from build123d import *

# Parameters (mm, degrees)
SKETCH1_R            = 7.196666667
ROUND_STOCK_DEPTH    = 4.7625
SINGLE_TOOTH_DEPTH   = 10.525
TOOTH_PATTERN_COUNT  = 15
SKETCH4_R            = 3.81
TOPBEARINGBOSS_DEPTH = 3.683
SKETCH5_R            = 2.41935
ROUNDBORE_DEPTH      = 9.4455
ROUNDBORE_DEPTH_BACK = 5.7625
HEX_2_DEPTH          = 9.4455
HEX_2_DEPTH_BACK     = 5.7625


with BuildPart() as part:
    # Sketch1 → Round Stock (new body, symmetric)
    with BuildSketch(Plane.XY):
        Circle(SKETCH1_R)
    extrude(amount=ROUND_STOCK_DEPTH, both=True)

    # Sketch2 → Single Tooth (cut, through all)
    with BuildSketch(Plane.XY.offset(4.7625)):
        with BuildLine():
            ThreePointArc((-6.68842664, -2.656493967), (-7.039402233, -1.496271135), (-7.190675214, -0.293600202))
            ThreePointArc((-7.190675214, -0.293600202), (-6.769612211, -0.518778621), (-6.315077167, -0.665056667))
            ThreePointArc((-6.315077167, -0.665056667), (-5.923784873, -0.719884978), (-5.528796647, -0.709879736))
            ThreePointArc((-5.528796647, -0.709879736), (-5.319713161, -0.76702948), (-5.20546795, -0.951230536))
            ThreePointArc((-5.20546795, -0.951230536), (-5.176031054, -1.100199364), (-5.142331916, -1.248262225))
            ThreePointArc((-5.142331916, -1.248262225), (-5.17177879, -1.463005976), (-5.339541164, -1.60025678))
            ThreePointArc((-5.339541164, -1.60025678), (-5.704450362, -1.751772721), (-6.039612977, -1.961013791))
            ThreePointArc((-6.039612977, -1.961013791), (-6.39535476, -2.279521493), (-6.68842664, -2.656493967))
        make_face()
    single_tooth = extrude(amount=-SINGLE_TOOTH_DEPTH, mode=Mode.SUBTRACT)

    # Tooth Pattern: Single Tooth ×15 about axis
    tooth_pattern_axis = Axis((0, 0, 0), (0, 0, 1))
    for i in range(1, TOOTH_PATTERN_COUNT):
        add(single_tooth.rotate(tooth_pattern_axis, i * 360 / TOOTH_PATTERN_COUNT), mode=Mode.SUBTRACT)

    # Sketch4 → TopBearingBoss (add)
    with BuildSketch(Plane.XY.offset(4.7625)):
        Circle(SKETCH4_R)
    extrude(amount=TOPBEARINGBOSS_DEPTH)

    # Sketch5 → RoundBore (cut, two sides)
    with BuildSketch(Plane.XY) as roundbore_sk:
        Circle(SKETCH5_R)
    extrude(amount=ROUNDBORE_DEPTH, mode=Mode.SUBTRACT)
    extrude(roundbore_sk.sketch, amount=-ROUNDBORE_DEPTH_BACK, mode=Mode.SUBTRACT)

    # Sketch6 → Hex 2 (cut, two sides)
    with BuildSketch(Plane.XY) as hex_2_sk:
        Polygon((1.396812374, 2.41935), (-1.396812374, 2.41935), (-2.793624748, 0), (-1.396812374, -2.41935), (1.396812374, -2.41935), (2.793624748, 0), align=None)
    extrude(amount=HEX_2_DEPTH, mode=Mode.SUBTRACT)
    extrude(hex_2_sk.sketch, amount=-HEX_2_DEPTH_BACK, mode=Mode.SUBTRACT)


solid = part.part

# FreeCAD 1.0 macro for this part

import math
import FreeCAD as App
import Part
import Sketcher
from FreeCAD import Vector
Q = App.Units.Quantity


def add_polygon(sketch, points):
    """Adds a closed chain of lines whose ends are joined by coincident constraints."""
    first, n = sketch.GeometryCount, len(points)
    for a, b in zip(points, points[1:] + points[:1]):
        sketch.addGeometry(Part.LineSegment(App.Vector(*a, 0), App.Vector(*b, 0)), False)
    for i in range(n):
        sketch.addConstraint(Sketcher.Constraint("Coincident", first + i, 2, first + (i + 1) % n, 1))

doc = App.newDocument("Part")
body = doc.addObject("PartDesign::Body", "Body")

sketch1 = doc.addObject("Sketcher::SketchObject", "Sketch")
body.addObject(sketch1)
sketch1.AttachmentSupport = (doc.XY_Plane, [""])
sketch1.MapMode = "FlatFace"
sketch1.addGeometry(Part.Circle(Vector(0, 0, 0), Vector(0, 0, 1), 7), False)
sketch1.addConstraint([
    Sketcher.Constraint("Coincident", 0, 3, -1, 1),
    Sketcher.Constraint("Diameter", 0, Q("14.393333 mm")),
])
pad1 = doc.addObject("PartDesign::Pad", "Pad")
body.addObject(pad1)
pad1.Profile = sketch1
pad1.Length = Q("0.375 in")
pad1.Midplane = True

sketch2 = doc.addObject("Sketcher::SketchObject", "Sketch001")
body.addObject(sketch2)
sketch2.AttachmentSupport = (doc.XY_Plane, [""])
sketch2.MapMode = "FlatFace"
sketch2.AttachmentOffset = App.Placement(Vector(0, 0, 0.1875 * 25.4), App.Rotation())
sketch2.addGeometry([
    Part.ArcOfCircle(Part.Circle(Vector(0, 0, 0), Vector(0, 0, 1), 7.2), math.radians(-177.66), math.radians(-158.34)),
    Part.ArcOfCircle(Part.Circle(Vector(-4.45, -4.09, 0), Vector(0, 0, 1), 2.66), math.radians(127), math.radians(147)),
    Part.ArcOfCircle(Part.Circle(Vector(-4.6, -3.89, 0), Vector(0, 0, 1), 2.4), math.radians(107.84), math.radians(126.69)),
    Part.ArcOfCircle(Part.Circle(Vector(-5.43, -1.32, 0), Vector(0, 0, 1), 0.3), math.radians(-72), math.radians(14)),
    Part.ArcOfCircle(Part.Circle(Vector(0, 0, 0), Vector(0, 0, 1), 5.29), math.radians(-169.64), math.radians(-166.36)),
    Part.ArcOfCircle(Part.Circle(Vector(-5.5, -1, 0), Vector(0, 0, 1), 0.3), math.radians(10), math.radians(96)),
    Part.ArcOfCircle(Part.Circle(Vector(-5.79, 1.68, 0), Vector(0, 0, 1), 2.4), math.radians(-102.69), math.radians(-83.84)),
    Part.ArcOfCircle(Part.Circle(Vector(-5.73, 1.93, 0), Vector(0, 0, 1), 2.66), math.radians(-123), math.radians(-103)),
], False)
sketch2.addConstraint([
    Sketcher.Constraint("Coincident", 0, 2, 1, 2),
    Sketcher.Constraint("Tangent", 1, 1, 2, 2),
    Sketcher.Constraint("Tangent", 2, 1, 3, 1),
    Sketcher.Constraint("Tangent", 3, 2, 4, 2),
    Sketcher.Constraint("Tangent", 4, 1, 5, 1),
    Sketcher.Constraint("Tangent", 5, 2, 6, 2),
    Sketcher.Constraint("Tangent", 6, 1, 7, 2),
    Sketcher.Constraint("Coincident", 7, 1, 0, 1),
    Sketcher.Constraint("Coincident", 0, 3, -1, 1),
    Sketcher.Constraint("Coincident", 4, 3, -1, 1),
    Sketcher.Constraint("Equal", 3, 5),
    Sketcher.Constraint("Equal", 2, 6),
    Sketcher.Constraint("Equal", 1, 7),
    Sketcher.Constraint("Radius", 0, Q("7.196667 mm")),
    Sketcher.Constraint("Radius", 1, Q("2.660227 mm")),
    Sketcher.Constraint("Radius", 2, Q("2.404045 mm")),
    Sketcher.Constraint("Radius", 3, Q("0.296333 mm")),
    Sketcher.Constraint("Radius", 4, Q("5.291667 mm")),
    Sketcher.Constraint("DistanceY", 5, 3, -1, 1, Q("1.004499 mm")),
    Sketcher.Constraint("DistanceY", 7, 1, -1, 1, Q("0.2936 mm")),
    Sketcher.Constraint("DistanceY", 2, 3, 3, 3, Q("2.570601 mm")),
    Sketcher.Constraint("DistanceX", 6, 3, 1, 3, Q("1.336799 mm")),
    Sketcher.Constraint("DistanceX", 0, 2, 2, 3, Q("2.085199 mm")),
    Sketcher.Constraint("DistanceY", 1, 3, 0, 2, Q("1.437699 mm")),
])
pocket1 = doc.addObject("PartDesign::Pocket", "Pocket")
body.addObject(pocket1)
pocket1.Profile = sketch2
pocket1.Type = "ThroughAll"
doc.recompute()

polarpattern = doc.addObject("PartDesign::PolarPattern", "PolarPattern")
body.addObject(polarpattern)
polarpattern.Originals = [pocket1]
polarpattern.Axis = (doc.Z_Axis, [""])
polarpattern.Angle = 360
polarpattern.Occurrences = 15
body.Tip = polarpattern

sketch3 = doc.addObject("Sketcher::SketchObject", "Sketch002")
body.addObject(sketch3)
sketch3.AttachmentSupport = (doc.XY_Plane, [""])
sketch3.MapMode = "FlatFace"
sketch3.AttachmentOffset = App.Placement(Vector(0, 0, 0.1875 * 25.4), App.Rotation())
sketch3.addGeometry(Part.Circle(Vector(0, 0, 0), Vector(0, 0, 1), 3.8), False)
sketch3.addConstraint([
    Sketcher.Constraint("Coincident", 0, 3, -1, 1),
    Sketcher.Constraint("Diameter", 0, Q("0.3 in")),
])
pad2 = doc.addObject("PartDesign::Pad", "Pad001")
body.addObject(pad2)
pad2.Profile = sketch3
pad2.Length = Q("0.145 in")

sketch4 = doc.addObject("Sketcher::SketchObject", "Sketch003")
body.addObject(sketch4)
sketch4.AttachmentSupport = (doc.XY_Plane, [""])
sketch4.MapMode = "FlatFace"
sketch4.addGeometry(Part.Circle(Vector(0, 0, 0), Vector(0, 0, 1), 2.4), False)
sketch4.addConstraint([
    Sketcher.Constraint("Coincident", 0, 3, -1, 1),
    Sketcher.Constraint("Diameter", 0, Q("0.1905 in")),
])
pocket2 = doc.addObject("PartDesign::Pocket", "Pocket001")
body.addObject(pocket2)
pocket2.Profile = sketch4
pocket2.Type = "ThroughAll"
pocket2.Midplane = True

sketch5 = doc.addObject("Sketcher::SketchObject", "Sketch004")
body.addObject(sketch5)
sketch5.AttachmentSupport = (doc.XY_Plane, [""])
sketch5.MapMode = "FlatFace"
add_polygon(sketch5, [(1.4, 2.4), (-1.4, 2.4), (-2.8, 0), (-1.4, -2.4), (1.4, -2.4), (2.8, 0)])
sketch5.addConstraint([
    Sketcher.Constraint("Horizontal", 0),
    Sketcher.Constraint("Horizontal", 3),
    Sketcher.Constraint("Symmetric", 0, 2, 3, 2, -1, 1),
    Sketcher.Constraint("Symmetric", 1, 2, 4, 2, -1, 1),
    Sketcher.Constraint("PointOnObject", 1, 2, -1),
    Sketcher.Constraint("Parallel", 2, 5),
    Sketcher.Constraint("Vertical", 0, 2, 2, 2),
    Sketcher.Constraint("Angle", 1, Q("-120 deg")),
    Sketcher.Constraint("DistanceY", 2, 2, 0, 2, Q("0.1905 in")),
    Sketcher.Constraint("DistanceX", 0, 2, 0, 1, Q("2.793625 mm")),
])
pocket3 = doc.addObject("PartDesign::Pocket", "Pocket002")
body.addObject(pocket3)
pocket3.Profile = sketch5
pocket3.Type = "ThroughAll"
pocket3.Midplane = True

doc.recompute()
